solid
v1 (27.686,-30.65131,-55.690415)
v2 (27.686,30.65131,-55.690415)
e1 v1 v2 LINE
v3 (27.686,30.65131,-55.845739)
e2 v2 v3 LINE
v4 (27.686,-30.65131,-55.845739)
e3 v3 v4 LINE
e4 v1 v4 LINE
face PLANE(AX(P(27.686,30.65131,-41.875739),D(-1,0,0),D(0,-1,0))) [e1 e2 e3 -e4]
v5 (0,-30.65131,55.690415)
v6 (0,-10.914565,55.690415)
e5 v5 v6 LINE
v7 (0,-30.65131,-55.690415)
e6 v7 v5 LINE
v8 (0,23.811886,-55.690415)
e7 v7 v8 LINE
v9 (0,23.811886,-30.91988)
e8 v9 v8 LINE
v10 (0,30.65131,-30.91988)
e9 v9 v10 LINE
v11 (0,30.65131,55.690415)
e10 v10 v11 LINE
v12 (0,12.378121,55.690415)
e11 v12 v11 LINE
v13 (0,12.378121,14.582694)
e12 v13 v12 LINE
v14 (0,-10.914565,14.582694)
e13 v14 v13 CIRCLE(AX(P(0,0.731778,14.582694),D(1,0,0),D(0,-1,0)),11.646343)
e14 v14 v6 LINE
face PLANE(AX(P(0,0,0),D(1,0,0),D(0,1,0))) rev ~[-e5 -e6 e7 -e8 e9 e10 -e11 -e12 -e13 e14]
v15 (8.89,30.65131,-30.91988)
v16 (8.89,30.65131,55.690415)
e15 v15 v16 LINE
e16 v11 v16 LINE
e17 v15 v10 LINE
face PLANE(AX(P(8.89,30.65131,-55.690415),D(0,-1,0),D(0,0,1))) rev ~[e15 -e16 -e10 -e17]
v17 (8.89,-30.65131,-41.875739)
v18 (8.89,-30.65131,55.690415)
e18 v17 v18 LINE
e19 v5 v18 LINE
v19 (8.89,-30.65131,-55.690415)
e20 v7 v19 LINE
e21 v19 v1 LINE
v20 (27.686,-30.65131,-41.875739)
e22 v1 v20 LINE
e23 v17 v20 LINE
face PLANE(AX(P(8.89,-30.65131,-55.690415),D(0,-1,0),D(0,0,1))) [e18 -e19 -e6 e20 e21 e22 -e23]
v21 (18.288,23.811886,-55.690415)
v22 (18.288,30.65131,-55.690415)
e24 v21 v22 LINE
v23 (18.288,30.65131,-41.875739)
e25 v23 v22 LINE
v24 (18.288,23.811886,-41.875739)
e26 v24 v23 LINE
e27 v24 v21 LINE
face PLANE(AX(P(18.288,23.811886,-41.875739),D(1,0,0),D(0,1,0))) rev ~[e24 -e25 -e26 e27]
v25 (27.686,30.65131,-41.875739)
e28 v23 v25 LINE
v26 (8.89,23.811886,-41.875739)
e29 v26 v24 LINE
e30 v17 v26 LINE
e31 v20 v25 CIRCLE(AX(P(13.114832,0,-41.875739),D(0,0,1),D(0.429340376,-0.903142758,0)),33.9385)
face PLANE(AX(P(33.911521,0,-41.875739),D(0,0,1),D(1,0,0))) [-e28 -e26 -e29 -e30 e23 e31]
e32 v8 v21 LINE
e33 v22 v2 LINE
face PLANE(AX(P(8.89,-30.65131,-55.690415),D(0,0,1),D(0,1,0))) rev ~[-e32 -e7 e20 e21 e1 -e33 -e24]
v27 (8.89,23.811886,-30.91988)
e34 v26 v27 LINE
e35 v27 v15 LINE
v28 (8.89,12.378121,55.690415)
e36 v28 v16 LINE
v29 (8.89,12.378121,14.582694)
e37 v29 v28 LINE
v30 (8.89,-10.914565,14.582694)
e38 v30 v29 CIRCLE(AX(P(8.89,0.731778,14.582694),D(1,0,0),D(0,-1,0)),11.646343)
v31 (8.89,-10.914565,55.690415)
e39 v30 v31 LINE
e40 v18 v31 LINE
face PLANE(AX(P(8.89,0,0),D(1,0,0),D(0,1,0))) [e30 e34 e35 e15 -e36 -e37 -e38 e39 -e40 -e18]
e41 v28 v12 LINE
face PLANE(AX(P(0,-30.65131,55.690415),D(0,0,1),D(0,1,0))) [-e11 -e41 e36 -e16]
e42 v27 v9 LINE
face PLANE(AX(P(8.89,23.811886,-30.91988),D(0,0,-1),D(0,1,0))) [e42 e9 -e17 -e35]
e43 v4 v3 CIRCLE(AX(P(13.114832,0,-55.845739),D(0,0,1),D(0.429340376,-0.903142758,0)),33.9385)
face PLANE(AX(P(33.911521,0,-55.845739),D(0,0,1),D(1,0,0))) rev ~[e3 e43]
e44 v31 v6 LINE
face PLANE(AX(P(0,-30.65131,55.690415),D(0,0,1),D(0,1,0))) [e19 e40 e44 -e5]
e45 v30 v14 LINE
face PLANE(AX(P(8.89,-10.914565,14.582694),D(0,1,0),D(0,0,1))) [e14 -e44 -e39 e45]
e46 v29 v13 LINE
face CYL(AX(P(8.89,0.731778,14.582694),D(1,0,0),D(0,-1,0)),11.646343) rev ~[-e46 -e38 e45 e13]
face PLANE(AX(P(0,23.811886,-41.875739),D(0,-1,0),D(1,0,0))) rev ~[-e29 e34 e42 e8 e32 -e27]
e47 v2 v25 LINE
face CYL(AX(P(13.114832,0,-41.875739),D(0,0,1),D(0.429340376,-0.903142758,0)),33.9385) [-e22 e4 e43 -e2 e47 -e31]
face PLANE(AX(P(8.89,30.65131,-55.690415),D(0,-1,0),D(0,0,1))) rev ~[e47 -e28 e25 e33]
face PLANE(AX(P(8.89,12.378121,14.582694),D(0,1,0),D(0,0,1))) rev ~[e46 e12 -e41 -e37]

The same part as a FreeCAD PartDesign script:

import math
import FreeCAD as App
import Part
import Sketcher

V = App.Vector
Q = App.Units.Quantity

doc = App.newDocument("Part")
body = doc.addObject("PartDesign::Body", "Body")

sketch1 = body.newObject("Sketcher::SketchObject", "Sketch")
sketch1.AttachmentSupport = (doc.getObject("YZ_Plane"), [""])
sketch1.MapMode = "FlatFace"
sketch1.addGeometry([
    Part.LineSegment(V(-30.65131, 55.690415, 0), V(-30.65131, -55.690415, 0)),
    Part.LineSegment(V(-30.65131, -55.690415, 0), V(30.65131, -55.690415, 0)),
    Part.LineSegment(V(30.65131, -55.690415, 0), V(30.65131, 55.690415, 0)),
    Part.LineSegment(V(30.65131, 55.690415, 0), V(-30.65131, 55.690415, 0)),
], False)
sketch1.addConstraint([
    Sketcher.Constraint("Coincident", 0, 2, 1, 1),
    Sketcher.Constraint("Coincident", 1, 2, 2, 1),
    Sketcher.Constraint("Coincident", 2, 2, 3, 1),
    Sketcher.Constraint("Coincident", 3, 2, 0, 1),
    Sketcher.Constraint("Vertical", 0),
    Sketcher.Constraint("Horizontal", 1),
    Sketcher.Constraint("Vertical", 2),
    Sketcher.Constraint("Horizontal", 3),
    Sketcher.Constraint("Symmetric", 0, 2, 2, 2, -1, 1),
    Sketcher.Constraint("DistanceX", 1, 1, 1, 2, Q("61.302621 mm")),
    Sketcher.Constraint("DistanceY", 0, 2, 0, 1, Q("111.38083 mm")),
])
pad1 = body.newObject("PartDesign::Pad", "Pad")
pad1.Profile = sketch1
pad1.Length = Q("0.35 in")

sketch2 = body.newObject("Sketcher::SketchObject", "Sketch001")
sketch2.AttachmentSupport = (doc.getObject("YZ_Plane"), [""])
sketch2.MapMode = "FlatFace"
sketch2.AttachmentOffset = App.Placement(V(0, 0, 0.35 * 25.4), App.Rotation())
sketch2.addGeometry([
    Part.LineSegment(V(-30.65131, -41.875739, 0), V(-30.65131, -55.690415, 0)),
    Part.LineSegment(V(-30.65131, -55.690415, 0), V(30.65131, -55.690415, 0)),
    Part.LineSegment(V(30.65131, -55.690415, 0), V(30.65131, -41.875739, 0)),
    Part.LineSegment(V(30.65131, -41.875739, 0), V(-30.65131, -41.875739, 0)),
], False)
sketch2.addConstraint([
    Sketcher.Constraint("Coincident", 0, 2, 1, 1),
    Sketcher.Constraint("Coincident", 1, 2, 2, 1),
    Sketcher.Constraint("Coincident", 2, 2, 3, 1),
    Sketcher.Constraint("Coincident", 3, 2, 0, 1),
    Sketcher.Constraint("Vertical", 0),
    Sketcher.Constraint("Horizontal", 1),
    Sketcher.Constraint("Vertical", 2),
    Sketcher.Constraint("Horizontal", 3),
    Sketcher.Constraint("DistanceX", 1, 1, 1, 2, Q("61.302621 mm")),
    Sketcher.Constraint("DistanceY", 0, 2, 0, 1, Q("13.814677 mm")),
    Sketcher.Constraint("DistanceX", 0, 2, -1, 1, Q("30.65131 mm")),
    Sketcher.Constraint("DistanceY", 2, 2, -1, 1, Q("41.875739 mm")),
])
pad2 = body.newObject("PartDesign::Pad", "Pad001")
pad2.Profile = sketch2
pad2.Length = Q("0.74 in")

sketch3 = body.newObject("Sketcher::SketchObject", "Sketch002")
sketch3.AttachmentSupport = (doc.getObject("XY_Plane"), [""])
sketch3.MapMode = "FlatFace"
sketch3.AttachmentOffset = App.Placement(V(0, 0, -41.875739), App.Rotation())
sketch3.addGeometry([
    Part.LineSegment(V(27.686, 30.65131, 0), V(27.686, -30.65131, 0)),
    Part.ArcOfCircle(Part.Circle(V(13.114832, 0, 0), V(0, 0, 1), 33.9385), math.radians(-64.574294), math.radians(64.574294)),
], False)
sketch3.addConstraint([
    Sketcher.Constraint("Coincident", 0, 1, 1, 2),
    Sketcher.Constraint("Coincident", 1, 1, 0, 2),
    Sketcher.Constraint("Vertical", 0),
    Sketcher.Constraint("PointOnObject", 1, 3, -1),
    Sketcher.Constraint("DistanceX", -1, 1, 0, 1, Q("1.09 in")),
    Sketcher.Constraint("Radius", 1, Q("33.9385 mm")),
    Sketcher.Constraint("DistanceY", 0, 2, 0, 1, Q("61.302621 mm")),
])
pad3 = body.newObject("PartDesign::Pad", "Pad002")
pad3.Profile = sketch3
pad3.Length = Q("0.55 in")
pad3.Reversed = True

sketch4 = body.newObject("Sketcher::SketchObject", "Sketch003")
sketch4.AttachmentSupport = (doc.getObject("YZ_Plane"), [""])
sketch4.MapMode = "FlatFace"
sketch4.AttachmentOffset = App.Placement(V(0, 0, 0.35 * 25.4), App.Rotation())
sketch4.addGeometry([
    Part.LineSegment(V(-10.914565, 55.690415, 0), V(-10.914565, 14.582694, 0)),
    Part.LineSegment(V(-10.914565, 14.582694, 0), V(12.378121, 14.582694, 0)),
    Part.LineSegment(V(12.378121, 14.582694, 0), V(12.378121, 55.690415, 0)),
    Part.LineSegment(V(12.378121, 55.690415, 0), V(-10.914565, 55.690415, 0)),
], False)
sketch4.addConstraint([
    Sketcher.Constraint("Coincident", 0, 2, 1, 1),
    Sketcher.Constraint("Coincident", 1, 2, 2, 1),
    Sketcher.Constraint("Coincident", 2, 2, 3, 1),
    Sketcher.Constraint("Coincident", 3, 2, 0, 1),
    Sketcher.Constraint("Vertical", 0),
    Sketcher.Constraint("Horizontal", 1),
    Sketcher.Constraint("Vertical", 2),
    Sketcher.Constraint("Horizontal", 3),
    Sketcher.Constraint("DistanceY", 0, 2, 0, 1, Q("41.107722 mm")),
    Sketcher.Constraint("DistanceX", 1, 1, 1, 2, Q("23.292686 mm")),
    Sketcher.Constraint("DistanceX", -1, 1, 1, 2, Q("12.378121 mm")),
    Sketcher.Constraint("DistanceY", -1, 1, 0, 2, Q("14.582694 mm")),
])
pocket1 = body.newObject("PartDesign::Pocket", "Pocket")
pocket1.Profile = sketch4
pocket1.Length = Q("1 in")

sketch5 = body.newObject("Sketcher::SketchObject", "Sketch004")
sketch5.AttachmentSupport = (doc.getObject("YZ_Plane"), [""])
sketch5.MapMode = "FlatFace"
sketch5.AttachmentOffset = App.Placement(V(0, 0, 0.35 * 25.4), App.Rotation())
sketch5.addGeometry([
    Part.LineSegment(V(12.378121, 14.582694, 0), V(-10.914565, 14.582694, 0)),
    Part.ArcOfCircle(Part.Circle(V(0.731778, 14.582694, 0), V(0, 0, 1), 11.646343), math.radians(180), math.radians(360)),
], False)
sketch5.addConstraint([
    Sketcher.Constraint("Coincident", 0, 1, 1, 2),
    Sketcher.Constraint("Coincident", 1, 1, 0, 2),
    Sketcher.Constraint("Horizontal", 0),
    Sketcher.Constraint("Horizontal", 1, 3, 0, 1),
    Sketcher.Constraint("Radius", 1, Q("11.646343 mm")),
    Sketcher.Constraint("DistanceX", -1, 1, 0, 1, Q("12.378121 mm")),
    Sketcher.Constraint("DistanceY", -1, 1, 1, 3, Q("14.582694 mm")),
])
pocket2 = body.newObject("PartDesign::Pocket", "Pocket001")
pocket2.Profile = sketch5
pocket2.Length = Q("1 in")

sketch6 = body.newObject("Sketcher::SketchObject", "Sketch005")
sketch6.AttachmentSupport = (doc.getObject("YZ_Plane"), [""])
sketch6.MapMode = "FlatFace"
sketch6.AttachmentOffset = App.Placement(V(0, 0, 0.35 * 25.4), App.Rotation())
sketch6.addGeometry([
    Part.LineSegment(V(23.811886, -30.91988, 0), V(23.811886, -41.875739, 0)),
    Part.LineSegment(V(23.811886, -41.875739, 0), V(30.65131, -41.875739, 0)),
    Part.LineSegment(V(30.65131, -41.875739, 0), V(30.65131, -30.91988, 0)),
    Part.LineSegment(V(30.65131, -30.91988, 0), V(23.811886, -30.91988, 0)),
], False)
sketch6.addConstraint([
    Sketcher.Constraint("Coincident", 0, 2, 1, 1),
    Sketcher.Constraint("Coincident", 1, 2, 2, 1),
    Sketcher.Constraint("Coincident", 2, 2, 3, 1),
    Sketcher.Constraint("Coincident", 3, 2, 0, 1),
    Sketcher.Constraint("Vertical", 0),
    Sketcher.Constraint("Horizontal", 1),
    Sketcher.Constraint("Vertical", 2),
    Sketcher.Constraint("Horizontal", 3),
    Sketcher.Constraint("DistanceY", 0, 2, 0, 1, Q("10.955859 mm")),
    Sketcher.Constraint("DistanceX", 1, 1, 1, 2, Q("6.839424 mm")),
    Sketcher.Constraint("DistanceY", 0, 2, -1, 1, Q("41.875739 mm")),
    Sketcher.Constraint("DistanceX", -1, 1, 1, 2, Q("30.65131 mm")),
])
pocket3 = body.newObject("PartDesign::Pocket", "Pocket002")
pocket3.Profile = sketch6
pocket3.Length = Q("1 in")

sketch7 = body.newObject("Sketcher::SketchObject", "Sketch006")
sketch7.AttachmentSupport = (doc.getObject("XY_Plane"), [""])
sketch7.MapMode = "FlatFace"
sketch7.AttachmentOffset = App.Placement(V(0, 0, -41.875739), App.Rotation())
sketch7.addGeometry([
    Part.LineSegment(V(0, 30.65131, 0), V(0, 23.811886, 0)),
    Part.LineSegment(V(0, 23.811886, 0), V(8.89, 23.811886, 0)),
    Part.LineSegment(V(8.89, 23.811886, 0), V(8.89, 30.65131, 0)),
    Part.LineSegment(V(8.89, 30.65131, 0), V(0, 30.65131, 0)),
], False)
sketch7.addConstraint([
    Sketcher.Constraint("Coincident", 0, 2, 1, 1),
    Sketcher.Constraint("Coincident", 1, 2, 2, 1),
    Sketcher.Constraint("Coincident", 2, 2, 3, 1),
    Sketcher.Constraint("Coincident", 3, 2, 0, 1),
    Sketcher.Constraint("Vertical", 0),
    Sketcher.Constraint("Horizontal", 1),
    Sketcher.Constraint("Vertical", 2),
    Sketcher.Constraint("Horizontal", 3),
    Sketcher.Constraint("PointOnObject", 0, 2, -2),
    Sketcher.Constraint("DistanceX", 1, 1, 1, 2, Q("0.35 in")),
    Sketcher.Constraint("DistanceY", 0, 2, 0, 1, Q("6.839424 mm")),
    Sketcher.Constraint("DistanceY", -1, 1, 2, 2, Q("30.65131 mm")),
])
pocket4 = body.newObject("PartDesign::Pocket", "Pocket003")
pocket4.Profile = sketch7
pocket4.Length = Q("1 in")

sketch8 = body.newObject("Sketcher::SketchObject", "Sketch007")
sketch8.AttachmentSupport = (doc.getObject("XY_Plane"), [""])
sketch8.MapMode = "FlatFace"
sketch8.AttachmentOffset = App.Placement(V(0, 0, -41.875739), App.Rotation())
sketch8.addGeometry([
    Part.LineSegment(V(8.89, 30.65131, 0), V(8.89, 23.811886, 0)),
    Part.LineSegment(V(8.89, 23.811886, 0), V(18.288, 23.811886, 0)),
    Part.LineSegment(V(18.288, 23.811886, 0), V(18.288, 30.65131, 0)),
    Part.LineSegment(V(18.288, 30.65131, 0), V(8.89, 30.65131, 0)),
], False)
sketch8.addConstraint([
    Sketcher.Constraint("Coincident", 0, 2, 1, 1),
    Sketcher.Constraint("Coincident", 1, 2, 2, 1),
    Sketcher.Constraint("Coincident", 2, 2, 3, 1),
    Sketcher.Constraint("Coincident", 3, 2, 0, 1),
    Sketcher.Constraint("Vertical", 0),
    Sketcher.Constraint("Horizontal", 1),
    Sketcher.Constraint("Vertical", 2),
    Sketcher.Constraint("Horizontal", 3),
    Sketcher.Constraint("DistanceX", 1, 1, 1, 2, Q("0.37 in")),
    Sketcher.Constraint("DistanceX", -1, 1, 0, 2, Q("0.35 in")),
    Sketcher.Constraint("DistanceY", 0, 2, 0, 1, Q("6.839424 mm")),
    Sketcher.Constraint("DistanceY", -1, 1, 2, 2, Q("30.65131 mm")),
])
pocket5 = body.newObject("PartDesign::Pocket", "Pocket004")
pocket5.Profile = sketch8
pocket5.Length = Q("1 in")

doc.recompute()
